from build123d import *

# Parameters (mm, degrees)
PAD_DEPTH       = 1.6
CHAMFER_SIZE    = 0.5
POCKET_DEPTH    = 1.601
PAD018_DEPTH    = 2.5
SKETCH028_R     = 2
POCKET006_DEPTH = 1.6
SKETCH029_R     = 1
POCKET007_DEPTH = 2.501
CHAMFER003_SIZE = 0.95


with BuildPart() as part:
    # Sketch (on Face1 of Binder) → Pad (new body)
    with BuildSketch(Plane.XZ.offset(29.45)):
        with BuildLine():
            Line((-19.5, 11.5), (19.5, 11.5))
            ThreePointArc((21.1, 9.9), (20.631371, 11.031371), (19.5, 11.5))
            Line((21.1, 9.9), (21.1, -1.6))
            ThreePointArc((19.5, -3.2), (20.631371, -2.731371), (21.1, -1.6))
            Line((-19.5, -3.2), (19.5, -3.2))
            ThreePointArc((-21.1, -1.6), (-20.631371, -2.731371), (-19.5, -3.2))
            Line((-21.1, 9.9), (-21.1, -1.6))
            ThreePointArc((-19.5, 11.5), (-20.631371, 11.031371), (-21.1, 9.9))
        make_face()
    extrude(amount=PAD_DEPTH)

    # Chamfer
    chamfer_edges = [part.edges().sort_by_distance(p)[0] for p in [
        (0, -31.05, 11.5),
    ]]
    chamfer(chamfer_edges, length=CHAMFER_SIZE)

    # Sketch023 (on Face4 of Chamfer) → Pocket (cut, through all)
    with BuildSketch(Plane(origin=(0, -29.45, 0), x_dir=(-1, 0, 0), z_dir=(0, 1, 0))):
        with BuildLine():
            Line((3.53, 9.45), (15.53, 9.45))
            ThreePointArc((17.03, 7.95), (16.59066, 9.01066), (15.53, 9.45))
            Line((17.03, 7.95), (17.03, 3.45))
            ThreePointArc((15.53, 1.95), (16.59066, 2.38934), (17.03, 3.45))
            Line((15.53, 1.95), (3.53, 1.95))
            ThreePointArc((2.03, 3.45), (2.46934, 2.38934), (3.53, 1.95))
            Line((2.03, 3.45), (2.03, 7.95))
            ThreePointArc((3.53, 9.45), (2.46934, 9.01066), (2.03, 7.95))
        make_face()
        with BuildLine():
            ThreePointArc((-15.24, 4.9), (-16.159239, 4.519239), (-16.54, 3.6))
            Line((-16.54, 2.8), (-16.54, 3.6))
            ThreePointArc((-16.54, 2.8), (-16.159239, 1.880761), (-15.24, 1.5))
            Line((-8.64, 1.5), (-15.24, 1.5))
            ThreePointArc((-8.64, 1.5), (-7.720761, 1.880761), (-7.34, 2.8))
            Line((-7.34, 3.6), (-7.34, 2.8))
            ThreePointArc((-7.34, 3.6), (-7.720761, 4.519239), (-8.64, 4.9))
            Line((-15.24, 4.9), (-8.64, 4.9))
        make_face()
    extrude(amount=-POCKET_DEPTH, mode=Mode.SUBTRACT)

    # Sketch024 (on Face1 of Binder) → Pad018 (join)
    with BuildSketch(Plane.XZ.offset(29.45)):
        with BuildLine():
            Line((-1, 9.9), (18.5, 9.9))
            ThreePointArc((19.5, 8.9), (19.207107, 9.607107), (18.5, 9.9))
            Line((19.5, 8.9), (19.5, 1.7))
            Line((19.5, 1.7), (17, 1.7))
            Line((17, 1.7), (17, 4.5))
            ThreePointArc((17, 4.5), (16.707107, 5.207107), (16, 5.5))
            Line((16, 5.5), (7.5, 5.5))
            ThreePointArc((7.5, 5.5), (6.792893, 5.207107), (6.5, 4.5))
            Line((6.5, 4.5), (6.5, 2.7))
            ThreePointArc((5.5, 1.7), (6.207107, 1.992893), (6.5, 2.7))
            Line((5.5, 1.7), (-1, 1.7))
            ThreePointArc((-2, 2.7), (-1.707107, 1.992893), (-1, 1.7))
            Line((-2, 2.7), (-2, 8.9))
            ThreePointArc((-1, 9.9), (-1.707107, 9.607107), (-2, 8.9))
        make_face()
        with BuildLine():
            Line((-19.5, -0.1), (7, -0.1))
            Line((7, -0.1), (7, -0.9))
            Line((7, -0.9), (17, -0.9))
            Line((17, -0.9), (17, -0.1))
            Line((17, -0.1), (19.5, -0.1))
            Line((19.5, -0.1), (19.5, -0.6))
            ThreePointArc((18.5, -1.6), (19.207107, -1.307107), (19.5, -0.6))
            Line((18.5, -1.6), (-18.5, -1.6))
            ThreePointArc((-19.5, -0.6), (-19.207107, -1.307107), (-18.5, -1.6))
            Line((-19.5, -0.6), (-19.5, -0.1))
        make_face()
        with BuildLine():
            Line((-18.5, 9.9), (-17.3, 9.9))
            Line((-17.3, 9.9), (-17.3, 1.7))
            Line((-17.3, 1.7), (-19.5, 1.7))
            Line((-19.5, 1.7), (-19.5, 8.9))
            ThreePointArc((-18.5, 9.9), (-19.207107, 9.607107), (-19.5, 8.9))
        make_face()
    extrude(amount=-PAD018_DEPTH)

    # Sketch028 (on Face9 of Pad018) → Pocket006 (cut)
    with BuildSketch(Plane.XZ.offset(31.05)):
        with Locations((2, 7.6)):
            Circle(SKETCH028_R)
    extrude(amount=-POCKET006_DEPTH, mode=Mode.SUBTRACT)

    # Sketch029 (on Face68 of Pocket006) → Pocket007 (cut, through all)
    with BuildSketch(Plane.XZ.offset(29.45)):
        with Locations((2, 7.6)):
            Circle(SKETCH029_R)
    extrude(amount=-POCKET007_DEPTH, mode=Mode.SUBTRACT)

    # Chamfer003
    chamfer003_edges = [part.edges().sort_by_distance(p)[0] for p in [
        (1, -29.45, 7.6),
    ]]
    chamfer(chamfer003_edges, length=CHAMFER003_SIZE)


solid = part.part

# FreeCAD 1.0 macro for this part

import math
import FreeCAD as App
import Part
import Sketcher


def edges_at(feature, points):
    """Names of the edges that pass closest to the given points."""
    edges = feature.Shape.Edges
    near = lambda p: min(range(len(edges)), key=lambda i: edges[i].distToShape(Part.Vertex(*p))[0])
    return sorted({f"Edge{near(p) + 1}" for p in points})

doc = App.newDocument("Part")
body = doc.addObject("PartDesign::Body", "Body")

# Sketch on XZ plane
sketch1 = body.newObject("Sketcher::SketchObject", "Sketch")
sketch1.AttachmentSupport = (doc.getObject("XZ_Plane"), [""])
sketch1.MapMode = "FlatFace"
sketch1.AttachmentOffset = App.Placement(App.Vector(0, 0, 29.45), App.Rotation())
sketch1.addGeometry(Part.LineSegment(App.Vector(19.5, 11.5, 0), App.Vector(-19.5, 11.5, 0)), False)
sketch1.addGeometry(Part.ArcOfCircle(Part.Circle(App.Vector(-19.5, 9.9, 0), App.Vector(0, 0, 1), 1.6), math.radians(90), math.radians(180)), False)
sketch1.addGeometry(Part.LineSegment(App.Vector(-21.1, 9.9, 0), App.Vector(-21.1, -1.6, 0)), False)
sketch1.addGeometry(Part.ArcOfCircle(Part.Circle(App.Vector(-19.5, -1.6, 0), App.Vector(0, 0, 1), 1.6), math.radians(180), math.radians(270)), False)
sketch1.addGeometry(Part.LineSegment(App.Vector(-19.5, -3.2, 0), App.Vector(19.5, -3.2, 0)), False)
sketch1.addGeometry(Part.ArcOfCircle(Part.Circle(App.Vector(19.5, -1.6, 0), App.Vector(0, 0, 1), 1.6), math.radians(-90), math.radians(0)), False)
sketch1.addGeometry(Part.LineSegment(App.Vector(21.1, -1.6, 0), App.Vector(21.1, 9.9, 0)), False)
sketch1.addGeometry(Part.ArcOfCircle(Part.Circle(App.Vector(19.5, 9.9, 0), App.Vector(0, 0, 1), 1.6), math.radians(0), math.radians(90)), False)
sketch1.addConstraint(Sketcher.Constraint("Tangent", 0, 2, 1, 1))
sketch1.addConstraint(Sketcher.Constraint("Tangent", 1, 2, 2, 1))
sketch1.addConstraint(Sketcher.Constraint("Tangent", 2, 2, 3, 1))
sketch1.addConstraint(Sketcher.Constraint("Tangent", 3, 2, 4, 1))
sketch1.addConstraint(Sketcher.Constraint("Tangent", 4, 2, 5, 1))
sketch1.addConstraint(Sketcher.Constraint("Tangent", 5, 2, 6, 1))
sketch1.addConstraint(Sketcher.Constraint("Tangent", 6, 2, 7, 1))
sketch1.addConstraint(Sketcher.Constraint("Tangent", 7, 2, 0, 1))
sketch1.addConstraint(Sketcher.Constraint("Horizontal", 0))
sketch1.addConstraint(Sketcher.Constraint("Vertical", 2))
sketch1.addConstraint(Sketcher.Constraint("Horizontal", 4))
sketch1.addConstraint(Sketcher.Constraint("Vertical", 6))
sketch1.addConstraint(Sketcher.Constraint("Equal", 1, 3))
sketch1.addConstraint(Sketcher.Constraint("Equal", 3, 5))
sketch1.addConstraint(Sketcher.Constraint("Equal", 5, 7))
sketch1.addConstraint(Sketcher.Constraint("Radius", 1, 1.599999))
sketch1.addConstraint(Sketcher.Constraint("DistanceX", 0, 2, 0, 1, 39.0))
sketch1.addConstraint(Sketcher.Constraint("DistanceY", 2, 2, 2, 1, 11.5))
sketch1.addConstraint(Sketcher.Constraint("DistanceX", 1, 3, -1, 1, 19.500001))
sketch1.addConstraint(Sketcher.Constraint("DistanceY", -1, 1, 1, 3, 9.900001))
pad1 = body.newObject("PartDesign::Pad", "Pad")
pad1.Profile = sketch1
pad1.Length = 1.6
doc.recompute()

chamfer = body.newObject("PartDesign::Chamfer", "Chamfer")
chamfer.Base = (pad1, edges_at(pad1, [(0, -31.05, 11.5)]))
chamfer.Size = 0.5

# Sketch on XZ plane
sketch2 = body.newObject("Sketcher::SketchObject", "Sketch001")
sketch2.AttachmentSupport = (doc.getObject("XZ_Plane"), [""])
sketch2.MapMode = "FlatFace"
sketch2.AttachmentOffset = App.Placement(App.Vector(0, 0, 29.45), App.Rotation())
sketch2.addGeometry(Part.LineSegment(App.Vector(-15.5, 9.4, 0), App.Vector(-3.5, 9.4, 0)), False)
sketch2.addGeometry(Part.ArcOfCircle(Part.Circle(App.Vector(-3.5, 7.9, 0), App.Vector(0, 0, 1), 1.5), math.radians(0), math.radians(90)), False)
sketch2.addGeometry(Part.LineSegment(App.Vector(-2, 8, 0), App.Vector(-2, 3.5, 0)), False)
sketch2.addGeometry(Part.ArcOfCircle(Part.Circle(App.Vector(-3.5, 3.5, 0), App.Vector(0, 0, 1), 1.5), math.radians(-90), math.radians(0)), False)
sketch2.addGeometry(Part.LineSegment(App.Vector(-3.5, 1.9, 0), App.Vector(-15.5, 1.9, 0)), False)
sketch2.addGeometry(Part.ArcOfCircle(Part.Circle(App.Vector(-15.5, 3.5, 0), App.Vector(0, 0, 1), 1.5), math.radians(-180), math.radians(-90)), False)
sketch2.addGeometry(Part.LineSegment(App.Vector(-17, 3.5, 0), App.Vector(-17, 8, 0)), False)
sketch2.addGeometry(Part.ArcOfCircle(Part.Circle(App.Vector(-15.5, 7.9, 0), App.Vector(0, 0, 1), 1.5), math.radians(90), math.radians(180)), False)
sketch2.addGeometry(Part.ArcOfCircle(Part.Circle(App.Vector(15.2, 3.6, 0), App.Vector(0, 0, 1), 1.3), math.radians(0), math.radians(90)), False)
sketch2.addGeometry(Part.LineSegment(App.Vector(16.5, 3.6, 0), App.Vector(16.5, 2.8, 0)), False)
sketch2.addGeometry(Part.ArcOfCircle(Part.Circle(App.Vector(15.2, 2.8, 0), App.Vector(0, 0, 1), 1.3), math.radians(-90), math.radians(0)), False)
sketch2.addGeometry(Part.LineSegment(App.Vector(15.2, 1.5, 0), App.Vector(8.6, 1.5, 0)), False)
sketch2.addGeometry(Part.ArcOfCircle(Part.Circle(App.Vector(8.6, 2.8, 0), App.Vector(0, 0, 1), 1.3), math.radians(180), math.radians(270)), False)
sketch2.addGeometry(Part.LineSegment(App.Vector(7.3, 2.8, 0), App.Vector(7.3, 3.6, 0)), False)
sketch2.addGeometry(Part.ArcOfCircle(Part.Circle(App.Vector(8.6, 3.6, 0), App.Vector(0, 0, 1), 1.3), math.radians(90), math.radians(180)), False)
sketch2.addGeometry(Part.LineSegment(App.Vector(8.6, 4.9, 0), App.Vector(15.2, 4.9, 0)), False)
sketch2.addConstraint(Sketcher.Constraint("Tangent", 0, 2, 1, 2))
sketch2.addConstraint(Sketcher.Constraint("Tangent", 1, 1, 2, 1))
sketch2.addConstraint(Sketcher.Constraint("Tangent", 2, 2, 3, 2))
sketch2.addConstraint(Sketcher.Constraint("Tangent", 3, 1, 4, 1))
sketch2.addConstraint(Sketcher.Constraint("Tangent", 4, 2, 5, 2))
sketch2.addConstraint(Sketcher.Constraint("Tangent", 5, 1, 6, 1))
sketch2.addConstraint(Sketcher.Constraint("Tangent", 6, 2, 7, 2))
sketch2.addConstraint(Sketcher.Constraint("Tangent", 7, 1, 0, 1))
sketch2.addConstraint(Sketcher.Constraint("Tangent", 8, 1, 9, 1))
sketch2.addConstraint(Sketcher.Constraint("Tangent", 9, 2, 10, 2))
sketch2.addConstraint(Sketcher.Constraint("Tangent", 10, 1, 11, 1))
sketch2.addConstraint(Sketcher.Constraint("Tangent", 11, 2, 12, 2))
sketch2.addConstraint(Sketcher.Constraint("Tangent", 12, 1, 13, 1))
sketch2.addConstraint(Sketcher.Constraint("Tangent", 13, 2, 14, 2))
sketch2.addConstraint(Sketcher.Constraint("Tangent", 14, 1, 15, 1))
sketch2.addConstraint(Sketcher.Constraint("Tangent", 15, 2, 8, 2))
sketch2.addConstraint(Sketcher.Constraint("Horizontal", 0))
sketch2.addConstraint(Sketcher.Constraint("Vertical", 2))
sketch2.addConstraint(Sketcher.Constraint("Horizontal", 4))
sketch2.addConstraint(Sketcher.Constraint("Vertical", 6))
sketch2.addConstraint(Sketcher.Constraint("Vertical", 9))
sketch2.addConstraint(Sketcher.Constraint("Horizontal", 11))
sketch2.addConstraint(Sketcher.Constraint("Vertical", 13))
sketch2.addConstraint(Sketcher.Constraint("Horizontal", 15))
sketch2.addConstraint(Sketcher.Constraint("Equal", 1, 3))
sketch2.addConstraint(Sketcher.Constraint("Equal", 3, 5))
sketch2.addConstraint(Sketcher.Constraint("Equal", 5, 7))
sketch2.addConstraint(Sketcher.Constraint("Equal", 8, 10))
sketch2.addConstraint(Sketcher.Constraint("Equal", 10, 12))
sketch2.addConstraint(Sketcher.Constraint("Equal", 12, 14))
sketch2.addConstraint(Sketcher.Constraint("Radius", 1, 1.500001))
sketch2.addConstraint(Sketcher.Constraint("Radius", 8, 1.299999))
sketch2.addConstraint(Sketcher.Constraint("DistanceX", 0, 1, 0, 2, 12.0))
sketch2.addConstraint(Sketcher.Constraint("DistanceX", 11, 2, 11, 1, 6.6))
sketch2.addConstraint(Sketcher.Constraint("DistanceY", 2, 2, 2, 1, 4.5))
sketch2.addConstraint(Sketcher.Constraint("DistanceY", 9, 2, 9, 1, 0.8))
sketch2.addConstraint(Sketcher.Constraint("DistanceY", -1, 1, 8, 3, 3.600001))
sketch2.addConstraint(Sketcher.Constraint("DistanceX", 1, 3, -1, 1, 3.530001))
sketch2.addConstraint(Sketcher.Constraint("DistanceY", -1, 1, 1, 3, 7.949999))
sketch2.addConstraint(Sketcher.Constraint("DistanceX", -1, 1, 8, 3, 15.240001))
pocket1 = body.newObject("PartDesign::Pocket", "Pocket")
pocket1.Profile = sketch2
pocket1.Type = "ThroughAll"
pocket1.Reversed = True

# Sketch on XZ plane
sketch3 = body.newObject("Sketcher::SketchObject", "Sketch002")
sketch3.AttachmentSupport = (doc.getObject("XZ_Plane"), [""])
sketch3.MapMode = "FlatFace"
sketch3.AttachmentOffset = App.Placement(App.Vector(0, 0, 29.45), App.Rotation())
sketch3.addGeometry(Part.LineSegment(App.Vector(18.5, 9.9, 0), App.Vector(-1, 9.9, 0)), False)
sketch3.addGeometry(Part.ArcOfCircle(Part.Circle(App.Vector(-1, 8.9, 0), App.Vector(0, 0, 1), 1), math.radians(90), math.radians(180)), False)
sketch3.addGeometry(Part.LineSegment(App.Vector(-2, 8.9, 0), App.Vector(-2, 2.7, 0)), False)
sketch3.addGeometry(Part.ArcOfCircle(Part.Circle(App.Vector(-1, 2.7, 0), App.Vector(0, 0, 1), 1), math.radians(180), math.radians(270)), False)
sketch3.addGeometry(Part.LineSegment(App.Vector(-1, 1.7, 0), App.Vector(5.5, 1.7, 0)), False)
sketch3.addGeometry(Part.ArcOfCircle(Part.Circle(App.Vector(5.5, 2.7, 0), App.Vector(0, 0, 1), 1), math.radians(-90), math.radians(0)), False)
sketch3.addGeometry(Part.LineSegment(App.Vector(6.5, 2.7, 0), App.Vector(6.5, 4.5, 0)), False)
sketch3.addGeometry(Part.ArcOfCircle(Part.Circle(App.Vector(7.5, 4.5, 0), App.Vector(0, 0, 1), 1), math.radians(90), math.radians(180)), False)
sketch3.addGeometry(Part.LineSegment(App.Vector(7.5, 5.5, 0), App.Vector(16, 5.5, 0)), False)
sketch3.addGeometry(Part.ArcOfCircle(Part.Circle(App.Vector(16, 4.5, 0), App.Vector(0, 0, 1), 1), math.radians(0), math.radians(90)), False)
sketch3.addGeometry(Part.LineSegment(App.Vector(17, 4.5, 0), App.Vector(17, 1.7, 0)), False)
sketch3.addGeometry(Part.LineSegment(App.Vector(17, 1.7, 0), App.Vector(19.5, 1.7, 0)), False)
sketch3.addGeometry(Part.LineSegment(App.Vector(19.5, 1.7, 0), App.Vector(19.5, 8.9, 0)), False)
sketch3.addGeometry(Part.ArcOfCircle(Part.Circle(App.Vector(18.5, 8.9, 0), App.Vector(0, 0, 1), 1), math.radians(0), math.radians(90)), False)
sketch3.addGeometry(Part.LineSegment(App.Vector(7, -0.1, 0), App.Vector(-19.5, -0.1, 0)), False)
sketch3.addGeometry(Part.LineSegment(App.Vector(-19.5, -0.1, 0), App.Vector(-19.5, -0.6, 0)), False)
sketch3.addGeometry(Part.ArcOfCircle(Part.Circle(App.Vector(-18.5, -0.6, 0), App.Vector(0, 0, 1), 1), math.radians(180), math.radians(270)), False)
sketch3.addGeometry(Part.LineSegment(App.Vector(-18.5, -1.6, 0), App.Vector(18.5, -1.6, 0)), False)
sketch3.addGeometry(Part.ArcOfCircle(Part.Circle(App.Vector(18.5, -0.6, 0), App.Vector(0, 0, 1), 1), math.radians(-90), math.radians(0)), False)
sketch3.addGeometry(Part.LineSegment(App.Vector(19.5, -0.6, 0), App.Vector(19.5, -0.1, 0)), False)
sketch3.addGeometry(Part.LineSegment(App.Vector(19.5, -0.1, 0), App.Vector(17, -0.1, 0)), False)
sketch3.addGeometry(Part.LineSegment(App.Vector(17, -0.1, 0), App.Vector(17, -0.9, 0)), False)
sketch3.addGeometry(Part.LineSegment(App.Vector(17, -0.9, 0), App.Vector(7, -0.9, 0)), False)
sketch3.addGeometry(Part.LineSegment(App.Vector(7, -0.9, 0), App.Vector(7, -0.1, 0)), False)
sketch3.addGeometry(Part.LineSegment(App.Vector(-17.3, 9.9, 0), App.Vector(-18.5, 9.9, 0)), False)
sketch3.addGeometry(Part.ArcOfCircle(Part.Circle(App.Vector(-18.5, 8.9, 0), App.Vector(0, 0, 1), 1), math.radians(90), math.radians(180)), False)
sketch3.addGeometry(Part.LineSegment(App.Vector(-19.5, 8.9, 0), App.Vector(-19.5, 1.7, 0)), False)
sketch3.addGeometry(Part.LineSegment(App.Vector(-19.5, 1.7, 0), App.Vector(-17.3, 1.7, 0)), False)
sketch3.addGeometry(Part.LineSegment(App.Vector(-17.3, 1.7, 0), App.Vector(-17.3, 9.9, 0)), False)
sketch3.addConstraint(Sketcher.Constraint("Tangent", 0, 2, 1, 1))
sketch3.addConstraint(Sketcher.Constraint("Tangent", 1, 2, 2, 1))
sketch3.addConstraint(Sketcher.Constraint("Tangent", 2, 2, 3, 1))
sketch3.addConstraint(Sketcher.Constraint("Tangent", 3, 2, 4, 1))
sketch3.addConstraint(Sketcher.Constraint("Tangent", 4, 2, 5, 1))
sketch3.addConstraint(Sketcher.Constraint("Tangent", 5, 2, 6, 1))
sketch3.addConstraint(Sketcher.Constraint("Tangent", 6, 2, 7, 2))
sketch3.addConstraint(Sketcher.Constraint("Tangent", 7, 1, 8, 1))
sketch3.addConstraint(Sketcher.Constraint("Tangent", 8, 2, 9, 2))
sketch3.addConstraint(Sketcher.Constraint("Tangent", 9, 1, 10, 1))
sketch3.addConstraint(Sketcher.Constraint("Coincident", 10, 2, 11, 1))
sketch3.addConstraint(Sketcher.Constraint("Coincident", 11, 2, 12, 1))
sketch3.addConstraint(Sketcher.Constraint("Tangent", 12, 2, 13, 1))
sketch3.addConstraint(Sketcher.Constraint("Tangent", 13, 2, 0, 1))
sketch3.addConstraint(Sketcher.Constraint("Coincident", 14, 2, 15, 1))
sketch3.addConstraint(Sketcher.Constraint("Tangent", 15, 2, 16, 1))
sketch3.addConstraint(Sketcher.Constraint("Tangent", 16, 2, 17, 1))
sketch3.addConstraint(Sketcher.Constraint("Tangent", 17, 2, 18, 1))
sketch3.addConstraint(Sketcher.Constraint("Tangent", 18, 2, 19, 1))
sketch3.addConstraint(Sketcher.Constraint("Coincident", 19, 2, 20, 1))
sketch3.addConstraint(Sketcher.Constraint("Coincident", 20, 2, 21, 1))
sketch3.addConstraint(Sketcher.Constraint("Coincident", 21, 2, 22, 1))
sketch3.addConstraint(Sketcher.Constraint("Coincident", 22, 2, 23, 1))
sketch3.addConstraint(Sketcher.Constraint("Coincident", 23, 2, 14, 1))
sketch3.addConstraint(Sketcher.Constraint("Tangent", 24, 2, 25, 1))
sketch3.addConstraint(Sketcher.Constraint("Tangent", 25, 2, 26, 1))
sketch3.addConstraint(Sketcher.Constraint("Coincident", 26, 2, 27, 1))
sketch3.addConstraint(Sketcher.Constraint("Coincident", 27, 2, 28, 1))
sketch3.addConstraint(Sketcher.Constraint("Coincident", 28, 2, 24, 1))
sketch3.addConstraint(Sketcher.Constraint("Horizontal", 0))
sketch3.addConstraint(Sketcher.Constraint("Vertical", 2))
sketch3.addConstraint(Sketcher.Constraint("Horizontal", 4))
sketch3.addConstraint(Sketcher.Constraint("Vertical", 6))
sketch3.addConstraint(Sketcher.Constraint("Horizontal", 8))
sketch3.addConstraint(Sketcher.Constraint("Vertical", 10))
sketch3.addConstraint(Sketcher.Constraint("Horizontal", 11))
sketch3.addConstraint(Sketcher.Constraint("Vertical", 12))
sketch3.addConstraint(Sketcher.Constraint("Horizontal", 14))
sketch3.addConstraint(Sketcher.Constraint("Vertical", 15))
sketch3.addConstraint(Sketcher.Constraint("Horizontal", 17))
sketch3.addConstraint(Sketcher.Constraint("Vertical", 19))
sketch3.addConstraint(Sketcher.Constraint("Horizontal", 20))
sketch3.addConstraint(Sketcher.Constraint("Vertical", 21))
sketch3.addConstraint(Sketcher.Constraint("Horizontal", 22))
sketch3.addConstraint(Sketcher.Constraint("Vertical", 23))
sketch3.addConstraint(Sketcher.Constraint("Horizontal", 24))
sketch3.addConstraint(Sketcher.Constraint("Vertical", 26))
sketch3.addConstraint(Sketcher.Constraint("Horizontal", 27))
sketch3.addConstraint(Sketcher.Constraint("Vertical", 28))
sketch3.addConstraint(Sketcher.Constraint("Equal", 1, 3))
sketch3.addConstraint(Sketcher.Constraint("Equal", 3, 5))
sketch3.addConstraint(Sketcher.Constraint("Equal", 5, 7))
sketch3.addConstraint(Sketcher.Constraint("Equal", 7, 9))
sketch3.addConstraint(Sketcher.Constraint("Equal", 9, 13))
sketch3.addConstraint(Sketcher.Constraint("Equal", 13, 16))
sketch3.addConstraint(Sketcher.Constraint("Equal", 16, 18))
sketch3.addConstraint(Sketcher.Constraint("Equal", 18, 25))
sketch3.addConstraint(Sketcher.Constraint("Symmetric", 13, 3, 25, 3, -2))
sketch3.addConstraint(Sketcher.Constraint("Symmetric", 14, 2, 19, 2, -2))
sketch3.addConstraint(Sketcher.Constraint("Horizontal", 4, 2, 10, 2))
sketch3.addConstraint(Sketcher.Constraint("Horizontal", 11, 2, 26, 2))
sketch3.addConstraint(Sketcher.Constraint("Vertical", 13, 3, 18, 3))
sketch3.addConstraint(Sketcher.Constraint("Vertical", 10, 2, 20, 2))
sketch3.addConstraint(Sketcher.Constraint("Radius", 1, 0.999999))
sketch3.addConstraint(Sketcher.Constraint("DistanceX", 17, 1, 17, 2, 37.0))
sketch3.addConstraint(Sketcher.Constraint("DistanceX", 22, 2, 22, 1, 10.0))
sketch3.addConstraint(Sketcher.Constraint("DistanceX", 0, 2, 0, 1, 19.5))
sketch3.addConstraint(Sketcher.Constraint("DistanceX", 4, 1, 4, 2, 6.5))
sketch3.addConstraint(Sketcher.Constraint("DistanceX", 8, 1, 8, 2, 8.5))
sketch3.addConstraint(Sketcher.Constraint("DistanceX", 24, 2, 24, 1, 1.2))
sketch3.addConstraint(Sketcher.Constraint("DistanceY", 2, 2, 2, 1, 6.2))
sketch3.addConstraint(Sketcher.Constraint("DistanceY", 6, 1, 6, 2, 1.8))
sketch3.addConstraint(Sketcher.Constraint("DistanceY", 15, 2, 15, 1, 0.5))
sketch3.addConstraint(Sketcher.Constraint("DistanceY", 21, 2, 21, 1, 0.8))
sketch3.addConstraint(Sketcher.Constraint("DistanceY", 14, 2, 25, 3, 9.000001))
sketch3.addConstraint(Sketcher.Constraint("DistanceY", -1, 1, 1, 3, 8.900001))
pad2 = body.newObject("PartDesign::Pad", "Pad001")
pad2.Profile = sketch3
pad2.Length = 2.5
pad2.Reversed = True

# Sketch on XZ plane
sketch4 = body.newObject("Sketcher::SketchObject", "Sketch003")
sketch4.AttachmentSupport = (doc.getObject("XZ_Plane"), [""])
sketch4.MapMode = "FlatFace"
sketch4.AttachmentOffset = App.Placement(App.Vector(0, 0, 31.05), App.Rotation())
sketch4.addGeometry(Part.Circle(App.Vector(2, 7.6, 0), App.Vector(0, 0, 1), 2), False)
sketch4.addConstraint(Sketcher.Constraint("Diameter", 0, 4.0))
sketch4.addConstraint(Sketcher.Constraint("DistanceX", -1, 1, 0, 3, 2.0))
sketch4.addConstraint(Sketcher.Constraint("DistanceY", -1, 1, 0, 3, 7.6))
pocket2 = body.newObject("PartDesign::Pocket", "Pocket001")
pocket2.Profile = sketch4
pocket2.Length = 1.6

# Sketch on XZ plane
sketch5 = body.newObject("Sketcher::SketchObject", "Sketch004")
sketch5.AttachmentSupport = (doc.getObject("XZ_Plane"), [""])
sketch5.MapMode = "FlatFace"
sketch5.AttachmentOffset = App.Placement(App.Vector(0, 0, 29.45), App.Rotation())
sketch5.addGeometry(Part.Circle(App.Vector(2, 7.6, 0), App.Vector(0, 0, 1), 1), False)
sketch5.addConstraint(Sketcher.Constraint("Diameter", 0, 2.0))
sketch5.addConstraint(Sketcher.Constraint("DistanceX", -1, 1, 0, 3, 2.0))
sketch5.addConstraint(Sketcher.Constraint("DistanceY", -1, 1, 0, 3, 7.6))
pocket3 = body.newObject("PartDesign::Pocket", "Pocket002")
pocket3.Profile = sketch5
pocket3.Type = "ThroughAll"
doc.recompute()

chamfer2 = body.newObject("PartDesign::Chamfer", "Chamfer001")
chamfer2.Base = (pocket3, edges_at(pocket3, [(1, -29.45, 7.6)]))
chamfer2.Size = 0.95

doc.recompute()
